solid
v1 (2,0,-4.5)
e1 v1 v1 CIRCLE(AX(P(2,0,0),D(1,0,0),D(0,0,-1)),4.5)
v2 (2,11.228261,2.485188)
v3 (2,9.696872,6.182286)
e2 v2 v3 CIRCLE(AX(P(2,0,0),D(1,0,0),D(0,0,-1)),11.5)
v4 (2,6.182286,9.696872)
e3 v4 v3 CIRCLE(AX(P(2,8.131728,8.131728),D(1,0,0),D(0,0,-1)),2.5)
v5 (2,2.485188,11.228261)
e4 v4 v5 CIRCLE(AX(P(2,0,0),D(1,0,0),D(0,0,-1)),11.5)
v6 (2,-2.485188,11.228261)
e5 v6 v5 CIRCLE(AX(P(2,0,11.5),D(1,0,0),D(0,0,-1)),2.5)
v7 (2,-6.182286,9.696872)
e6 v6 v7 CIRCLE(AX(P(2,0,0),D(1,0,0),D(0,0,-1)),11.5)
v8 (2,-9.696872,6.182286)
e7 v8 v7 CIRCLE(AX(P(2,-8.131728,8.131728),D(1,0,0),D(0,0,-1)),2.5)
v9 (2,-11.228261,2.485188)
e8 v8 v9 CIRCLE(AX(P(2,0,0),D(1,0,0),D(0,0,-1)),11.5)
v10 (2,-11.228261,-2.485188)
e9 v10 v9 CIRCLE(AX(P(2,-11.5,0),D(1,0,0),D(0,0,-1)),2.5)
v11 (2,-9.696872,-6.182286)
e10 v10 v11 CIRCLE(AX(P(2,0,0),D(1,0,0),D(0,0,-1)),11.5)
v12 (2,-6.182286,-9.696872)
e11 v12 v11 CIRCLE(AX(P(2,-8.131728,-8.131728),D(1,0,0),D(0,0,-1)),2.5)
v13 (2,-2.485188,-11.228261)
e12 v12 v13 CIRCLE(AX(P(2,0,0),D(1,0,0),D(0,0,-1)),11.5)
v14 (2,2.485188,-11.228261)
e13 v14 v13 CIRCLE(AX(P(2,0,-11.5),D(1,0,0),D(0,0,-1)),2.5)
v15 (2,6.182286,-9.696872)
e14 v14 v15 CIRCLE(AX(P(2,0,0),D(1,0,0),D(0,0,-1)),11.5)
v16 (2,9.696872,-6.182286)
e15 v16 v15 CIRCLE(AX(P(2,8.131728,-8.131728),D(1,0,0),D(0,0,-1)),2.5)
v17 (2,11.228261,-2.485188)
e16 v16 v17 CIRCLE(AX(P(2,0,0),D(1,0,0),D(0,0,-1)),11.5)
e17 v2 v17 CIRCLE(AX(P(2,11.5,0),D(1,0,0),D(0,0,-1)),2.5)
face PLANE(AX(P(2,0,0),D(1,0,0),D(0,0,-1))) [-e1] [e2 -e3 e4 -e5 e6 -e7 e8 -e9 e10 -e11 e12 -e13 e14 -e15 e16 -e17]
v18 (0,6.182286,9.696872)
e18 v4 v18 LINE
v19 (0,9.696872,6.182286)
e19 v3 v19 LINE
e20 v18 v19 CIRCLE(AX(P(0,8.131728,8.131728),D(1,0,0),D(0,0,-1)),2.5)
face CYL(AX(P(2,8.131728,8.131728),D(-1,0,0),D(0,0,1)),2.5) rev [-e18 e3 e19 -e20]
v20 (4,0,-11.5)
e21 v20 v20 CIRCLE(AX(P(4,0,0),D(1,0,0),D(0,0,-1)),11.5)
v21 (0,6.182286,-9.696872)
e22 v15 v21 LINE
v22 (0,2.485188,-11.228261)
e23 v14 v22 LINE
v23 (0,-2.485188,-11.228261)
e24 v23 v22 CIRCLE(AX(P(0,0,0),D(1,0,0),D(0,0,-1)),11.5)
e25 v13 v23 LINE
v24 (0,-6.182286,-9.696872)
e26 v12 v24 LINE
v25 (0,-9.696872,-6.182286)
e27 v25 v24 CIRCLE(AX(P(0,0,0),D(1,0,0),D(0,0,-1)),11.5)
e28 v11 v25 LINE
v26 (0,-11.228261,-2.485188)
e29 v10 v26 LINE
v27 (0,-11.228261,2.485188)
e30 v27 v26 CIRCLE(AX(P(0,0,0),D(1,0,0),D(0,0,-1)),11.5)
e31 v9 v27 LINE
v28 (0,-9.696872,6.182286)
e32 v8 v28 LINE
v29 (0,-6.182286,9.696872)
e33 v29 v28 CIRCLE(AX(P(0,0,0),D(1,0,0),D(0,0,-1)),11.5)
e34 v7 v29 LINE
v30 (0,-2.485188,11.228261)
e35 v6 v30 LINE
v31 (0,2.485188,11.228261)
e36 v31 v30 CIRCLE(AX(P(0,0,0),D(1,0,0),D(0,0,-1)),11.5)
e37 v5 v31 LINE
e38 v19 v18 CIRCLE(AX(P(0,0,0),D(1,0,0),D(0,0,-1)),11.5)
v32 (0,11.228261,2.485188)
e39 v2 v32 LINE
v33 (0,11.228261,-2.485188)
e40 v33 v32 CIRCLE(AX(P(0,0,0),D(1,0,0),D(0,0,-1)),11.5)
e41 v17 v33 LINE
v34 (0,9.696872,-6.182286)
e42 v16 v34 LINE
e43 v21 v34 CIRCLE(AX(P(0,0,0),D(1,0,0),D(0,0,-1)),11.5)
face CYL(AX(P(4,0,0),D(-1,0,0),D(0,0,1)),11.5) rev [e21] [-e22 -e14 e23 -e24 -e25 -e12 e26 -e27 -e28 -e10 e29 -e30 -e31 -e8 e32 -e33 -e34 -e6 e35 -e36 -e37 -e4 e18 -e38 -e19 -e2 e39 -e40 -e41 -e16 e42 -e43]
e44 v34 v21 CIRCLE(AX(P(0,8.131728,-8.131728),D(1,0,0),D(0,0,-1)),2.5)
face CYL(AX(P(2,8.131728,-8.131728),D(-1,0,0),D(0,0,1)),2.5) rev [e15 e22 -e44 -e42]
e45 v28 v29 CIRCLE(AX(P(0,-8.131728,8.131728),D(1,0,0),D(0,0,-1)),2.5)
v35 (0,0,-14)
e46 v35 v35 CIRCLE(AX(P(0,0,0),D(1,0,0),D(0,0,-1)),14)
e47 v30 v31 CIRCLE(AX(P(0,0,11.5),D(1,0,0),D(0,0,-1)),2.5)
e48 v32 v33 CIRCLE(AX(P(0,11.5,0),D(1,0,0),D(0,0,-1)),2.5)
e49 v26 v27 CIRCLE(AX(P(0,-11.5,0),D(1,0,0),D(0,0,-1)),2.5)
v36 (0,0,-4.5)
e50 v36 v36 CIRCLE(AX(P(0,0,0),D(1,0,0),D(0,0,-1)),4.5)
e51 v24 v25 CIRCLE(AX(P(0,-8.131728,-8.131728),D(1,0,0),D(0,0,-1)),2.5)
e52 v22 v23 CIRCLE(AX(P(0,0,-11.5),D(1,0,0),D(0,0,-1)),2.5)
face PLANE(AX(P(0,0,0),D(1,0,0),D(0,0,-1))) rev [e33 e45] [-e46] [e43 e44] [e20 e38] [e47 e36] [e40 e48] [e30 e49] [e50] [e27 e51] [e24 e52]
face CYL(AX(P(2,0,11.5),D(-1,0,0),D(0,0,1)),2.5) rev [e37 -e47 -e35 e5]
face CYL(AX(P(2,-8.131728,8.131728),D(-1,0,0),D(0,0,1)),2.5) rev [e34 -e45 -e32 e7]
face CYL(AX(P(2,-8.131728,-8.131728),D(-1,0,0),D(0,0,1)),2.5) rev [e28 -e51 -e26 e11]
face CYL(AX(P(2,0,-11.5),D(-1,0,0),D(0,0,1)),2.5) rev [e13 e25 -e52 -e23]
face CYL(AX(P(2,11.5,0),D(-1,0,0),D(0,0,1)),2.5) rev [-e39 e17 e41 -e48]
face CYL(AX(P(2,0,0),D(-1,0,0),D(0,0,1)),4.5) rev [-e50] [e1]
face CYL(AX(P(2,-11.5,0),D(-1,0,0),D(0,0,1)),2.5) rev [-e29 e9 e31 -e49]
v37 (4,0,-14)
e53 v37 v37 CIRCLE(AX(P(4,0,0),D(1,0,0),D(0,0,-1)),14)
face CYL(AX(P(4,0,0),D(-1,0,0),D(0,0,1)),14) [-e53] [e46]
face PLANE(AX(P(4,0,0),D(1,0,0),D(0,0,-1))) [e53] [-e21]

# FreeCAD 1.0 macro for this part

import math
import FreeCAD as App
import Part
import Sketcher
from FreeCAD import Vector

doc = App.newDocument("Part")
body = doc.addObject("PartDesign::Body", "Body")

sketch1 = body.newObject("Sketcher::SketchObject", "Sketch")
sketch1.AttachmentSupport = (doc.getObject("YZ_Plane"), [""])
sketch1.MapMode = "FlatFace"
sketch1.addGeometry([
    Part.ArcOfCircle(Part.Circle(Vector(0, -11.5, 0), Vector(0, 0, 1), 2.5), math.radians(6), math.radians(174)),
    Part.ArcOfCircle(Part.Circle(Vector(0, 0, 0), Vector(0, 0, 1), 11.5), math.radians(-78), math.radians(-57)),
    Part.ArcOfCircle(Part.Circle(Vector(8.1, -8.1, 0), Vector(0, 0, 1), 2.5), math.radians(51), math.radians(219)),
    Part.ArcOfCircle(Part.Circle(Vector(0, 0, 0), Vector(0, 0, 1), 11.5), math.radians(-33), math.radians(-12)),
    Part.ArcOfCircle(Part.Circle(Vector(11.5, 0, 0), Vector(0, 0, 1), 2.5), math.radians(96), math.radians(264)),
    Part.ArcOfCircle(Part.Circle(Vector(0, 0, 0), Vector(0, 0, 1), 11.5), math.radians(12), math.radians(33)),
    Part.ArcOfCircle(Part.Circle(Vector(8.1, 8.1, 0), Vector(0, 0, 1), 2.5), math.radians(-90), math.radians(-51)),
    Part.ArcOfCircle(Part.Circle(Vector(8.1, 8.1, 0), Vector(0, 0, 1), 2.5), math.radians(141), math.radians(270)),
    Part.ArcOfCircle(Part.Circle(Vector(0, 0, 0), Vector(0, 0, 1), 11.5), math.radians(57), math.radians(78)),
    Part.ArcOfCircle(Part.Circle(Vector(0, 11.5, 0), Vector(0, 0, 1), 2.5), math.radians(-90), math.radians(-6)),
    Part.ArcOfCircle(Part.Circle(Vector(0, 11.5, 0), Vector(0, 0, 1), 2.5), math.radians(-174), math.radians(-90)),
    Part.ArcOfCircle(Part.Circle(Vector(0, 0, 0), Vector(0, 0, 1), 11.5), math.radians(102), math.radians(123)),
    Part.ArcOfCircle(Part.Circle(Vector(-8.1, 8.1, 0), Vector(0, 0, 1), 2.5), math.radians(-90), math.radians(39)),
    Part.ArcOfCircle(Part.Circle(Vector(-8.1, 8.1, 0), Vector(0, 0, 1), 2.5), math.radians(-129), math.radians(-90)),
    Part.ArcOfCircle(Part.Circle(Vector(0, 0, 0), Vector(0, 0, 1), 11.5), math.radians(147), math.radians(168)),
    Part.ArcOfCircle(Part.Circle(Vector(-11.5, 0, 0), Vector(0, 0, 1), 2.5), math.radians(-84), math.radians(84)),
    Part.ArcOfCircle(Part.Circle(Vector(0, 0, 0), Vector(0, 0, 1), 11.5), math.radians(-168), math.radians(-147)),
    Part.ArcOfCircle(Part.Circle(Vector(-8.1, -8.1, 0), Vector(0, 0, 1), 2.5), math.radians(-39), math.radians(129)),
    Part.ArcOfCircle(Part.Circle(Vector(0, 0, 0), Vector(0, 0, 1), 11.5), math.radians(-123), math.radians(-102)),
    Part.Circle(Vector(0, 0, 0), Vector(0, 0, 1), 4.5),
], False)
sketch1.addConstraint([
    Sketcher.Constraint("Coincident", 0, 1, 1, 1),
    Sketcher.Constraint("Coincident", 1, 2, 2, 2),
    Sketcher.Constraint("Coincident", 2, 1, 3, 1),
    Sketcher.Constraint("Coincident", 3, 2, 4, 2),
    Sketcher.Constraint("Coincident", 4, 1, 5, 1),
    Sketcher.Constraint("Coincident", 5, 2, 6, 2),
    Sketcher.Constraint("Tangent", 6, 1, 7, 2),
    Sketcher.Constraint("Coincident", 7, 1, 8, 1),
    Sketcher.Constraint("Coincident", 8, 2, 9, 2),
    Sketcher.Constraint("Tangent", 9, 1, 10, 2),
    Sketcher.Constraint("Coincident", 10, 1, 11, 1),
    Sketcher.Constraint("Coincident", 11, 2, 12, 2),
    Sketcher.Constraint("Tangent", 12, 1, 13, 2),
    Sketcher.Constraint("Coincident", 13, 1, 14, 1),
    Sketcher.Constraint("Coincident", 14, 2, 15, 2),
    Sketcher.Constraint("Coincident", 15, 1, 16, 1),
    Sketcher.Constraint("Coincident", 16, 2, 17, 2),
    Sketcher.Constraint("Coincident", 17, 1, 18, 1),
    Sketcher.Constraint("Coincident", 18, 2, 0, 2),
    Sketcher.Constraint("Coincident", 1, 3, -1, 1),
    Sketcher.Constraint("Coincident", 3, 3, -1, 1),
    Sketcher.Constraint("Coincident", 5, 3, -1, 1),
    Sketcher.Constraint("Coincident", 8, 3, -1, 1),
    Sketcher.Constraint("Coincident", 11, 3, -1, 1),
    Sketcher.Constraint("Coincident", 14, 3, -1, 1),
    Sketcher.Constraint("Coincident", 16, 3, -1, 1),
    Sketcher.Constraint("Coincident", 18, 3, -1, 1),
    Sketcher.Constraint("Coincident", 19, 3, -1, 1),
    Sketcher.Constraint("Equal", 0, 2),
    Sketcher.Constraint("Equal", 1, 3),
    Sketcher.Constraint("Equal", 2, 4),
    Sketcher.Constraint("Equal", 3, 5),
    Sketcher.Constraint("Equal", 4, 6),
    Sketcher.Constraint("Equal", 6, 7),
    Sketcher.Constraint("Equal", 5, 8),
    Sketcher.Constraint("Equal", 7, 9),
    Sketcher.Constraint("Equal", 9, 10),
    Sketcher.Constraint("Equal", 8, 11),
    Sketcher.Constraint("Equal", 10, 12),
    Sketcher.Constraint("Equal", 12, 13),
    Sketcher.Constraint("Equal", 11, 14),
    Sketcher.Constraint("Equal", 13, 15),
    Sketcher.Constraint("Equal", 14, 16),
    Sketcher.Constraint("Equal", 15, 17),
    Sketcher.Constraint("Equal", 16, 18),
    Sketcher.Constraint("Symmetric", 0, 3, 9, 3, -1, 1),
    Sketcher.Constraint("Symmetric", 2, 3, 12, 3, -1, 1),
    Sketcher.Constraint("Symmetric", 4, 3, 15, 3, -1, 1),
    Sketcher.Constraint("Symmetric", 6, 3, 17, 3, -1, 1),
    Sketcher.Constraint("Symmetric", 6, 3, 12, 3, -2),
    Sketcher.Constraint("PointOnObject", 0, 3, -2),
    Sketcher.Constraint("PointOnObject", 4, 3, -1),
    Sketcher.Constraint("PointOnObject", 9, 1, -2),
    Sketcher.Constraint("Vertical", 7, 3, 6, 1),
    Sketcher.Constraint("Vertical", 17, 3, 12, 1),
    Sketcher.Constraint("Diameter", 19, 9.0),
    Sketcher.Constraint("Radius", 0, 2.5),
    Sketcher.Constraint("Radius", 1, 11.5),
    Sketcher.Constraint("DistanceY", -1, 1, 9, 1, 9.0),
    Sketcher.Constraint("DistanceX", -1, 1, 4, 3, 11.5),
    Sketcher.Constraint("DistanceX", 0, 1, 1, 2, 3.697099),
    Sketcher.Constraint("DistanceY", 2, 1, 3, 2, 3.697099),
])
pad1 = body.newObject("PartDesign::Pad", "Pad")
pad1.Profile = sketch1
pad1.Length = 2

sketch2 = body.newObject("Sketcher::SketchObject", "Sketch001")
sketch2.AttachmentSupport = (doc.getObject("YZ_Plane"), [""])
sketch2.MapMode = "FlatFace"
sketch2.AttachmentOffset = App.Placement(Vector(0, 0, 2), App.Rotation())
sketch2.addGeometry([
    Part.Circle(Vector(0, 0, 0), Vector(0, 0, 1), 14),
    Part.Circle(Vector(0, 0, 0), Vector(0, 0, 1), 12),
], False)
sketch2.addConstraint([
    Sketcher.Constraint("Coincident", 0, 3, -1, 1),
    Sketcher.Constraint("Coincident", 1, 3, -1, 1),
    Sketcher.Constraint("Diameter", 0, 28.0),
    Sketcher.Constraint("Diameter", 1, 23.0),
])
pad2 = body.newObject("PartDesign::Pad", "Pad001")
pad2.Profile = sketch2
pad2.Length = 4
pad2.Midplane = True

doc.recompute()
